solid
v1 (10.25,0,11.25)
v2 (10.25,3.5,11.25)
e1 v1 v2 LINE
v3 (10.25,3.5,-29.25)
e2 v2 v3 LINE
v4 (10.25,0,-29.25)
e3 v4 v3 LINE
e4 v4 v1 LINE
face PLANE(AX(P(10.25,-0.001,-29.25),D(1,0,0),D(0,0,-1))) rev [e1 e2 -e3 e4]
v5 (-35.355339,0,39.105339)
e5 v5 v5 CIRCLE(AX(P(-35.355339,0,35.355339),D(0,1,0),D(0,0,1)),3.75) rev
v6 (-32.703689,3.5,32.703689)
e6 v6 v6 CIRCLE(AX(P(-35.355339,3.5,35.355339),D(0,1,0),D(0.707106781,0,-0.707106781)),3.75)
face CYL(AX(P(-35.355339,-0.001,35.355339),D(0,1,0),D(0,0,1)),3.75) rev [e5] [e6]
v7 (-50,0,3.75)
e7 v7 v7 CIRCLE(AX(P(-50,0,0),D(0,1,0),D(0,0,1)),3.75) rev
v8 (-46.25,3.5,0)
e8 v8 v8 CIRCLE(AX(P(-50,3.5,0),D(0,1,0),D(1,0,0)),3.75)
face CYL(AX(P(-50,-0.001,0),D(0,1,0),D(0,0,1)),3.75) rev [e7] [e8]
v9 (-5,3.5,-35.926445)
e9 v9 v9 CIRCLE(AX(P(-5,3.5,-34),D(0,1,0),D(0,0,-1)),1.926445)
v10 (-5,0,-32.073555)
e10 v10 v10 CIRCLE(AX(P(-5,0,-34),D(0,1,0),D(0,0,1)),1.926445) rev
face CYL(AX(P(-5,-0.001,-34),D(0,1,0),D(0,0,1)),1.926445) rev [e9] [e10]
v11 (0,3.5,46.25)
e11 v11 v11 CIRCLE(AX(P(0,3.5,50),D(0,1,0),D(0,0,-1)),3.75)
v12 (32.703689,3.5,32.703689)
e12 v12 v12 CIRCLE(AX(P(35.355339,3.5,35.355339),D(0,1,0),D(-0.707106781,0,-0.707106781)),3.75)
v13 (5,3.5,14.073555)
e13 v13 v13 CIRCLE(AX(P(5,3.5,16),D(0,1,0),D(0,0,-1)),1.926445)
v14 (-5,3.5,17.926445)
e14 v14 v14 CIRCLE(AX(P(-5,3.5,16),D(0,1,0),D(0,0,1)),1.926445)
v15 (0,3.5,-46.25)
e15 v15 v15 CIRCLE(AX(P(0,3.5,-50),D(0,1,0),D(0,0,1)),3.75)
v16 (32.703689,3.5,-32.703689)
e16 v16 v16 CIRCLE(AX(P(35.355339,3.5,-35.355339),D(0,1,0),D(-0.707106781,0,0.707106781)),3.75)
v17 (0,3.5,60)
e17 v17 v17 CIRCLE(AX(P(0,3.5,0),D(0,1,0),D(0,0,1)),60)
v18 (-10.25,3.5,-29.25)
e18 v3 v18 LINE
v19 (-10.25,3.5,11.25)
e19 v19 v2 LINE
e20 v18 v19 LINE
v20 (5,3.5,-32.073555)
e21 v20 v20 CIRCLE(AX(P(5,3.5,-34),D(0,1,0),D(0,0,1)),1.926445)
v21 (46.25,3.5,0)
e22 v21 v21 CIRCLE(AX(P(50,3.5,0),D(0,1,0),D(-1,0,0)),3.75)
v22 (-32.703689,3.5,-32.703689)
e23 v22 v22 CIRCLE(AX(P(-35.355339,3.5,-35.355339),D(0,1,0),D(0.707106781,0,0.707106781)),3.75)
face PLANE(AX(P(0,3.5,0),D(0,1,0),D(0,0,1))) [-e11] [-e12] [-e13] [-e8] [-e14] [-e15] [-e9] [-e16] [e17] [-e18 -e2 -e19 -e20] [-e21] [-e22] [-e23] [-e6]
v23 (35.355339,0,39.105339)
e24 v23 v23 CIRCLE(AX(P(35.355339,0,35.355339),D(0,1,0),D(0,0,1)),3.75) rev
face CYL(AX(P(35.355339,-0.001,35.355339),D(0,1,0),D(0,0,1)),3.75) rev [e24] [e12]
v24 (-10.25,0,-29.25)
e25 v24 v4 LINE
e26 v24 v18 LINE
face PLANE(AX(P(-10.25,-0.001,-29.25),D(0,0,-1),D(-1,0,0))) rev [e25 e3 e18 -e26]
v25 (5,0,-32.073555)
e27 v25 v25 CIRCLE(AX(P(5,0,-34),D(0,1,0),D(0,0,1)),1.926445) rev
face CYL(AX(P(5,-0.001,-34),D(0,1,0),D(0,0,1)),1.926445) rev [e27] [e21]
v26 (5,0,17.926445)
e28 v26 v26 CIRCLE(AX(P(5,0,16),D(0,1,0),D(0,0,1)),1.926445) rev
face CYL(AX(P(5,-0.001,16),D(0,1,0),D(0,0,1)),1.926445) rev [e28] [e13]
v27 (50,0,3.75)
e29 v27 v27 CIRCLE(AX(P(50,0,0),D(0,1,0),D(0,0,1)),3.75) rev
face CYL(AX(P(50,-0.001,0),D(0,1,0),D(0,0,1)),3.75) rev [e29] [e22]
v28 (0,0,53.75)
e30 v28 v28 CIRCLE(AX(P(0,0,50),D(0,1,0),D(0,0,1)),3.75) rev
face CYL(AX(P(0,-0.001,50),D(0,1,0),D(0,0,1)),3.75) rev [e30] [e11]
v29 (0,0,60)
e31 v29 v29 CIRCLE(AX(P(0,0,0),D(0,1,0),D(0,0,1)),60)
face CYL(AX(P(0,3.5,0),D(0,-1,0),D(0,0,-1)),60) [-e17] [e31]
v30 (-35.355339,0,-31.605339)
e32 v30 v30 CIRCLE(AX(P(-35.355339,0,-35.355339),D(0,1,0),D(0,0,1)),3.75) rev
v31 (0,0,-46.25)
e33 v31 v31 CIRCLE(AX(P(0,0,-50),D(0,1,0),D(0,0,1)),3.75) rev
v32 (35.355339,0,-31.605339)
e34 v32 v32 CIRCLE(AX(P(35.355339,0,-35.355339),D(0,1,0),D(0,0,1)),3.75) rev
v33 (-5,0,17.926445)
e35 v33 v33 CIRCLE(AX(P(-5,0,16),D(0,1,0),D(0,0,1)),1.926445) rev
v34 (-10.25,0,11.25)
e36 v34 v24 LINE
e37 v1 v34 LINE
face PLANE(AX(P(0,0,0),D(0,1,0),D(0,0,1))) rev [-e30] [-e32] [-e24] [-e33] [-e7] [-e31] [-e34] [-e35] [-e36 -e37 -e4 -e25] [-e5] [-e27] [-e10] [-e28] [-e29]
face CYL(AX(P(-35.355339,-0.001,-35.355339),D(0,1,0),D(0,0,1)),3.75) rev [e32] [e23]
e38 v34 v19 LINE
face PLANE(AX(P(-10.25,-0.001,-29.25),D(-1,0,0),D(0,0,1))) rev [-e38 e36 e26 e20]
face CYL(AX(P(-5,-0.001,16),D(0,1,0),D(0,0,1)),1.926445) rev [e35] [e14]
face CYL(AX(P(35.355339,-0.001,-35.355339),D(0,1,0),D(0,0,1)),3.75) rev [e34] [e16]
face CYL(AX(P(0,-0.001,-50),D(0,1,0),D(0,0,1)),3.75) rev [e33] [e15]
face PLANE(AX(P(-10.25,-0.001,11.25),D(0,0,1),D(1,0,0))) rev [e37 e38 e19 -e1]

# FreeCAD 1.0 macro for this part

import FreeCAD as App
import Part
import Sketcher
from FreeCAD import Vector


def add_polygon(sketch, points):
    """Adds a closed chain of lines whose ends are joined by coincident constraints."""
    first, n = sketch.GeometryCount, len(points)
    for a, b in zip(points, points[1:] + points[:1]):
        sketch.addGeometry(Part.LineSegment(App.Vector(*a, 0), App.Vector(*b, 0)), False)
    for i in range(n):
        sketch.addConstraint(Sketcher.Constraint("Coincident", first + i, 2, first + (i + 1) % n, 1))

doc = App.newDocument("Part")
body = doc.addObject("PartDesign::Body", "Body")

sketch1 = body.newObject("Sketcher::SketchObject", "Sketch")
sketch1.AttachmentSupport = (doc.getObject("XZ_Plane"), [""])
sketch1.MapMode = "FlatFace"
sketch1.addGeometry(Part.Circle(Vector(0, 0, 0), Vector(0, 0, 1), 60), False)
sketch1.addConstraint([
    Sketcher.Constraint("Coincident", 0, 3, -1, 1),
    Sketcher.Constraint("Diameter", 0, 120.0),
])
pad1 = body.newObject("PartDesign::Pad", "Pad")
pad1.Profile = sketch1
pad1.Length = 3.5
pad1.Reversed = True

sketch2 = body.newObject("Sketcher::SketchObject", "Sketch001")
sketch2.AttachmentSupport = (doc.getObject("XZ_Plane"), [""])
sketch2.MapMode = "FlatFace"
sketch2.AttachmentOffset = App.Placement(Vector(0, 0, -3.5), App.Rotation())
sketch2.addGeometry(Part.Circle(Vector(0, -50, 0), Vector(0, 0, 1), 3.8), False)
sketch2.addConstraint([
    Sketcher.Constraint("PointOnObject", 0, 3, -2),
    Sketcher.Constraint("Diameter", 0, 7.5),
    Sketcher.Constraint("DistanceY", 0, 3, -1, 1, 50.0),
])
pocket1 = body.newObject("PartDesign::Pocket", "Pocket")
pocket1.Profile = sketch2
pocket1.Length = 3.5
pocket1.Reversed = True
doc.recompute()

polarpattern = body.newObject("PartDesign::PolarPattern", "PolarPattern")
polarpattern.Originals = [pocket1]
polarpattern.Axis = (doc.getObject("Y_Axis"), [""])
polarpattern.Angle = 360
polarpattern.Occurrences = 8
body.Tip = polarpattern

sketch3 = body.newObject("Sketcher::SketchObject", "Sketch002")
sketch3.AttachmentSupport = (doc.getObject("XZ_Plane"), [""])
sketch3.MapMode = "FlatFace"
sketch3.AttachmentOffset = App.Placement(Vector(0, 0, -3.5), App.Rotation())
sketch3.addGeometry(Part.Circle(Vector(5, -34, 0), Vector(0, 0, 1), 1.9), False)
sketch3.addConstraint([
    Sketcher.Constraint("DistanceX", -1, 1, 0, 3, 5.0),
    Sketcher.Constraint("DistanceY", 0, 3, -1, 1, 34.0),
    Sketcher.Constraint("Diameter", 0, 3.85289),
])
pocket2 = body.newObject("PartDesign::Pocket", "Pocket001")
pocket2.Profile = sketch3
pocket2.Type = "UpToFirst"
pocket2.Reversed = True

sketch4 = body.newObject("Sketcher::SketchObject", "Sketch003")
sketch4.AttachmentSupport = (doc.getObject("XZ_Plane"), [""])
sketch4.MapMode = "FlatFace"
sketch4.AttachmentOffset = App.Placement(Vector(0, 0, -3.5), App.Rotation())
sketch4.addGeometry(Part.Circle(Vector(5, 16, 0), Vector(0, 0, 1), 1.9), False)
sketch4.addConstraint([
    Sketcher.Constraint("DistanceX", -1, 1, 0, 3, 5.0),
    Sketcher.Constraint("DistanceY", -1, 1, 0, 3, 16.0),
    Sketcher.Constraint("Diameter", 0, 3.85289),
])
pocket3 = body.newObject("PartDesign::Pocket", "Pocket002")
pocket3.Profile = sketch4
pocket3.Type = "UpToFirst"
pocket3.Reversed = True

sketch5 = body.newObject("Sketcher::SketchObject", "Sketch004")
sketch5.AttachmentSupport = (doc.getObject("XZ_Plane"), [""])
sketch5.MapMode = "FlatFace"
sketch5.AttachmentOffset = App.Placement(Vector(0, 0, -3.5), App.Rotation())
sketch5.addGeometry(Part.Circle(Vector(-5, -34, 0), Vector(0, 0, 1), 1.9), False)
sketch5.addConstraint([
    Sketcher.Constraint("DistanceX", 0, 3, -1, 1, 5.0),
    Sketcher.Constraint("DistanceY", 0, 3, -1, 1, 34.0),
    Sketcher.Constraint("Diameter", 0, 3.85289),
])
pocket4 = body.newObject("PartDesign::Pocket", "Pocket003")
pocket4.Profile = sketch5
pocket4.Type = "UpToFirst"
pocket4.Reversed = True

sketch6 = body.newObject("Sketcher::SketchObject", "Sketch005")
sketch6.AttachmentSupport = (doc.getObject("XZ_Plane"), [""])
sketch6.MapMode = "FlatFace"
sketch6.AttachmentOffset = App.Placement(Vector(0, 0, -3.5), App.Rotation())
sketch6.addGeometry(Part.Circle(Vector(-5, 16, 0), Vector(0, 0, 1), 1.9), False)
sketch6.addConstraint([
    Sketcher.Constraint("DistanceX", 0, 3, -1, 1, 5.0),
    Sketcher.Constraint("DistanceY", -1, 1, 0, 3, 16.0),
    Sketcher.Constraint("Diameter", 0, 3.85289),
])
pocket5 = body.newObject("PartDesign::Pocket", "Pocket004")
pocket5.Profile = sketch6
pocket5.Type = "UpToFirst"
pocket5.Reversed = True

sketch7 = body.newObject("Sketcher::SketchObject", "Sketch006")
sketch7.AttachmentSupport = (doc.getObject("XZ_Plane"), [""])
sketch7.MapMode = "FlatFace"
sketch7.AttachmentOffset = App.Placement(Vector(0, 0, -3.5), App.Rotation())
add_polygon(sketch7, [(-10, -29), (-10, 11), (10, 11), (10, -29)])
sketch7.addConstraint([
    Sketcher.Constraint("Vertical", 0),
    Sketcher.Constraint("Horizontal", 1),
    Sketcher.Constraint("Vertical", 2),
    Sketcher.Constraint("Horizontal", 3),
    Sketcher.Constraint("DistanceX", 1, 1, 1, 2, 20.5),
    Sketcher.Constraint("DistanceY", 0, 1, 0, 2, 40.5),
    Sketcher.Constraint("DistanceX", 0, 2, -1, 1, 10.25),
    Sketcher.Constraint("DistanceY", -1, 1, 0, 2, 11.25),
])
pocket6 = body.newObject("PartDesign::Pocket", "Pocket005")
pocket6.Profile = sketch7
pocket6.Type = "UpToFirst"
pocket6.Reversed = True

doc.recompute()
